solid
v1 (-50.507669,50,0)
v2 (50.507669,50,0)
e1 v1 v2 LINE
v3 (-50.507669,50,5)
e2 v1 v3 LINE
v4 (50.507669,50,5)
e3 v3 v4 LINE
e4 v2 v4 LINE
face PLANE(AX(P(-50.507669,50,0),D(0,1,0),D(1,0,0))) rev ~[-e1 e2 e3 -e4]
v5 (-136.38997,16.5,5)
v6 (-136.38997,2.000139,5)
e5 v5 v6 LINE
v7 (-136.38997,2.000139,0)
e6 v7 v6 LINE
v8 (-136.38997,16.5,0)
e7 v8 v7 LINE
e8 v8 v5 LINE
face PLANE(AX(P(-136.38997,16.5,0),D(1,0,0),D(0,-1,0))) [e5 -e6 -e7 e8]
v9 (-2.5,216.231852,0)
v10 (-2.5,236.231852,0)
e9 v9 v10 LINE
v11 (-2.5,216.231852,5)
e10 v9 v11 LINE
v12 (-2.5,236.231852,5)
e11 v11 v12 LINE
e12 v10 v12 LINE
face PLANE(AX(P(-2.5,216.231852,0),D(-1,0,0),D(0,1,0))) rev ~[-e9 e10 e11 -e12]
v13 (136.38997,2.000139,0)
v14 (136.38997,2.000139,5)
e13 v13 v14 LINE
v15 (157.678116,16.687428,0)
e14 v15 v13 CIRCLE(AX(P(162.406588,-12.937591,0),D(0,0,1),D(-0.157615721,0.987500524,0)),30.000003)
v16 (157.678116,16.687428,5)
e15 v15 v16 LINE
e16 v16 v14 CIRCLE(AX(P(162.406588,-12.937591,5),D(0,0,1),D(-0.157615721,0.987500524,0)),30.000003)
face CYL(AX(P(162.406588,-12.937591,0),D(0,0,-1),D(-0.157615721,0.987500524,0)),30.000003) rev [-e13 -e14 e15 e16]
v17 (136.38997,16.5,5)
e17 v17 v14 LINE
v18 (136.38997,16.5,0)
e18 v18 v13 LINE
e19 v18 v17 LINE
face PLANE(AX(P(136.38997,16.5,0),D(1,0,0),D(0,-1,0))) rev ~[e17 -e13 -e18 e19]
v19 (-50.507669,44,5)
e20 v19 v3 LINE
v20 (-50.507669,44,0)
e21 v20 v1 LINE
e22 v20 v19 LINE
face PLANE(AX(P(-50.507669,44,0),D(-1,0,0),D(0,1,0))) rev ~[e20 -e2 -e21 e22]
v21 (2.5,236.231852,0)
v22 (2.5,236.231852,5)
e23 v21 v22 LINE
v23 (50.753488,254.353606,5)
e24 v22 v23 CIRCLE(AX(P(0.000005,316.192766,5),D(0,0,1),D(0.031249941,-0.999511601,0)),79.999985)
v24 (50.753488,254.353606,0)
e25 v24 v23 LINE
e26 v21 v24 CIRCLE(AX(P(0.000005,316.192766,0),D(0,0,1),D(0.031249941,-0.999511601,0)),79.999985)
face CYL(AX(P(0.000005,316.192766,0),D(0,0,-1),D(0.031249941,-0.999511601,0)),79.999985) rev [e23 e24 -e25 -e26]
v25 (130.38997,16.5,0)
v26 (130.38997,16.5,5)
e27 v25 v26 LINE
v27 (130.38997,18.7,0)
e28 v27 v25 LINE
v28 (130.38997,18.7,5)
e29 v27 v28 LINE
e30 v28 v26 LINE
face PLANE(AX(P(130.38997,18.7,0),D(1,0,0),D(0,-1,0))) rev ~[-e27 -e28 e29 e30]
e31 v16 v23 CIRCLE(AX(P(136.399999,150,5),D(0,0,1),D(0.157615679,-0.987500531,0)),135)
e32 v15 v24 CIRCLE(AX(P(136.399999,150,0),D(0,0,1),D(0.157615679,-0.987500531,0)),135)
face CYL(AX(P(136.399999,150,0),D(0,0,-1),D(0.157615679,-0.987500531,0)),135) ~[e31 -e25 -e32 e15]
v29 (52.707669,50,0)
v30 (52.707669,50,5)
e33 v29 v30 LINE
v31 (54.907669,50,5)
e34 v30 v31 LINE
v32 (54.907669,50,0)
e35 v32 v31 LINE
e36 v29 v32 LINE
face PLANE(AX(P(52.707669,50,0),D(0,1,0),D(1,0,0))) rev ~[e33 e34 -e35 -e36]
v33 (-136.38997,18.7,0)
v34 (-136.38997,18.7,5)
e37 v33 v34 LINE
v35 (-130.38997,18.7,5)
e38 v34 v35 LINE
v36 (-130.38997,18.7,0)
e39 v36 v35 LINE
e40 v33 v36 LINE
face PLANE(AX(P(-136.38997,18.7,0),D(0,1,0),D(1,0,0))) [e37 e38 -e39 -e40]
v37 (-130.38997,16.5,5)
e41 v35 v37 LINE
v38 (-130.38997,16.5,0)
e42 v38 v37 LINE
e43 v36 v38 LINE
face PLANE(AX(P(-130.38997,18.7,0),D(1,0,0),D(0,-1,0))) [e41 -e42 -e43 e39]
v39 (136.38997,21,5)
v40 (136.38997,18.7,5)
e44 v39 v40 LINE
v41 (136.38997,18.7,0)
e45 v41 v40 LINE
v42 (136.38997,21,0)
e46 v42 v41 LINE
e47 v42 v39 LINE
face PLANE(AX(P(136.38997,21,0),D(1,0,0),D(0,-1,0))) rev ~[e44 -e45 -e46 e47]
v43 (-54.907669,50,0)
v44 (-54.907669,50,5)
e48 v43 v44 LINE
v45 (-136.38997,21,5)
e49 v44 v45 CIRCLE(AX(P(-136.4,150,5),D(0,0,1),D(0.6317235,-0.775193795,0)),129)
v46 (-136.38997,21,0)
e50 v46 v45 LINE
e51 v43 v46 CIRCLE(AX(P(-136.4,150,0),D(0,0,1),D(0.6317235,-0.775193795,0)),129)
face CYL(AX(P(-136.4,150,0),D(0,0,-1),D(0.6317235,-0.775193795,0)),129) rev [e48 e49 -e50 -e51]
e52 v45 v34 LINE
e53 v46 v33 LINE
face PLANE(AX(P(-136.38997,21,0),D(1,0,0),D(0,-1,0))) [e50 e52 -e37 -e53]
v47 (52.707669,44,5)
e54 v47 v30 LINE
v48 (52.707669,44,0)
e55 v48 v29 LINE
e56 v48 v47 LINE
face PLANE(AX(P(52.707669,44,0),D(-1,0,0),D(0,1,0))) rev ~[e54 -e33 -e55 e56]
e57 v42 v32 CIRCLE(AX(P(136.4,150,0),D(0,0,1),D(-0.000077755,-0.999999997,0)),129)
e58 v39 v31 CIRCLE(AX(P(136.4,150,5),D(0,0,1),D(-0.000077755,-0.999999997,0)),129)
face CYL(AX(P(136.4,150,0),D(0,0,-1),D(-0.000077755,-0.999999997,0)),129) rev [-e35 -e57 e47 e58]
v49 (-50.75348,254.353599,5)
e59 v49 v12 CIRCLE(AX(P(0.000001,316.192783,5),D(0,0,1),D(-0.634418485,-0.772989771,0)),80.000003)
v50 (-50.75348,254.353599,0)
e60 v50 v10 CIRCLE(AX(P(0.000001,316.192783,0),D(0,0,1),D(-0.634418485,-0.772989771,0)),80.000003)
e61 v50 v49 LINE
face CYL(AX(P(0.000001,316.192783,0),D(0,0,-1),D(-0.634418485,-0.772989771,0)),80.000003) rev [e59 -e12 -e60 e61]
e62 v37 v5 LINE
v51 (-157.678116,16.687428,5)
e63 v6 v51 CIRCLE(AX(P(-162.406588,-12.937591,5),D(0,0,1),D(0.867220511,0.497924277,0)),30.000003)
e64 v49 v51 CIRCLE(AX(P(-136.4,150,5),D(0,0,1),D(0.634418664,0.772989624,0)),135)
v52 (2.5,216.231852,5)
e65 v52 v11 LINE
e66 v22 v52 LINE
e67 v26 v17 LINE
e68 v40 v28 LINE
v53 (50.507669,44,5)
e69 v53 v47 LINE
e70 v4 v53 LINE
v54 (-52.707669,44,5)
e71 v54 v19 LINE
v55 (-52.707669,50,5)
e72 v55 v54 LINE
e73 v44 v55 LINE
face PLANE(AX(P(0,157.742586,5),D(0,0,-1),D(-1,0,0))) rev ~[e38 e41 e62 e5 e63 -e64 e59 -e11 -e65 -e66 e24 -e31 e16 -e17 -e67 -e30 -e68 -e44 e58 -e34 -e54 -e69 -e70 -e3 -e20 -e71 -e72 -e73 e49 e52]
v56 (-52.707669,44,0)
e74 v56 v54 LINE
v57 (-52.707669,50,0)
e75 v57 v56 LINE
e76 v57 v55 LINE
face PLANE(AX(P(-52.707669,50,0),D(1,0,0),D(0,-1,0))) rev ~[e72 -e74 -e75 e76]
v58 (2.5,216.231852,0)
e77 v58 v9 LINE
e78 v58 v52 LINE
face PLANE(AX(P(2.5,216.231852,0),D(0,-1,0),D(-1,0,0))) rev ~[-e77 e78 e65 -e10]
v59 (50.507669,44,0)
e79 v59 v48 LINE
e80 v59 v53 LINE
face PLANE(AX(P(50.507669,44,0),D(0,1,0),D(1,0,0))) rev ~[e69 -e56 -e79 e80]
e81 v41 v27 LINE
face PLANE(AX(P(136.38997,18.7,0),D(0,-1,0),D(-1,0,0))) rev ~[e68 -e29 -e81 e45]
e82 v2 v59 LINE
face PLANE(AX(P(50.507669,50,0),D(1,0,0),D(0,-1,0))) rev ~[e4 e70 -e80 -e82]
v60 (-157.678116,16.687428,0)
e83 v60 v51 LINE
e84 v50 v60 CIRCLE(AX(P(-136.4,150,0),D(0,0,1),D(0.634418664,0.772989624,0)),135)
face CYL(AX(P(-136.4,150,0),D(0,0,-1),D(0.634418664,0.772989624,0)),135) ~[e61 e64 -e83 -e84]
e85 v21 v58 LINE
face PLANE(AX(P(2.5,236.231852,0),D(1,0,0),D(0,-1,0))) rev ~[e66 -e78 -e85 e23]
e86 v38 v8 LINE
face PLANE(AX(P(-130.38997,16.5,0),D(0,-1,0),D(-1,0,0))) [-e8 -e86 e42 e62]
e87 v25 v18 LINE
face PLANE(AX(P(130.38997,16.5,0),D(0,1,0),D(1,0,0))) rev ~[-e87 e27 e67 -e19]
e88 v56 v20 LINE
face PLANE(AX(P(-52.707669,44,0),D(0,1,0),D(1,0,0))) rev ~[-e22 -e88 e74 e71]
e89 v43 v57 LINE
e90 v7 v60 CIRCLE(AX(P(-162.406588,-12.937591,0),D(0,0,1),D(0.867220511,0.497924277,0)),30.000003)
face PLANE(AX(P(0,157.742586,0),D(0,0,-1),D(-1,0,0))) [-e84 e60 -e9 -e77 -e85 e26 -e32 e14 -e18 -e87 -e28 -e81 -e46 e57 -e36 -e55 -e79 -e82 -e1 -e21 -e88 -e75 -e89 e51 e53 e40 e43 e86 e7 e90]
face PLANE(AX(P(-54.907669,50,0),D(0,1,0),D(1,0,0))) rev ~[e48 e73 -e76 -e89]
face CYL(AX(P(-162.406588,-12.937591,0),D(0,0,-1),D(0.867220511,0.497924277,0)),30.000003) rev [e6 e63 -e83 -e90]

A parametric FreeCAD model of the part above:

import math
import FreeCAD as App
import Part
import Sketcher

doc = App.newDocument("Part")
body = doc.addObject("PartDesign::Body", "Body")

# Sketch on XY plane
sketch1 = body.newObject("Sketcher::SketchObject", "Sketch")
sketch1.AttachmentSupport = (doc.getObject("XY_Plane"), [""])
sketch1.MapMode = "FlatFace"
sketch1.addGeometry(Part.ArcOfCircle(Part.Circle(App.Vector(136.4, 150, 0), App.Vector(0, 0, 1), 129), math.radians(-90), math.radians(231)), False)
sketch1.addGeometry(Part.LineSegment(App.Vector(136.4, 21, 0), App.Vector(136.4, 18.7, 0)), False)
sketch1.addGeometry(Part.LineSegment(App.Vector(136.4, 18.7, 0), App.Vector(130.4, 18.7, 0)), False)
sketch1.addGeometry(Part.LineSegment(App.Vector(130.4, 18.7, 0), App.Vector(130.4, 16.5, 0)), False)
sketch1.addGeometry(Part.LineSegment(App.Vector(130.4, 16.5, 0), App.Vector(136.4, 16.5, 0)), False)
sketch1.addGeometry(Part.LineSegment(App.Vector(136.4, 16.5, 0), App.Vector(136.4, 2, 0)), False)
sketch1.addGeometry(Part.ArcOfCircle(Part.Circle(App.Vector(162.4, -12.9, 0), App.Vector(0, 0, 1), 30), math.radians(99), math.radians(150)), False)
sketch1.addGeometry(Part.ArcOfCircle(Part.Circle(App.Vector(136.4, 150, 0), App.Vector(0, 0, 1), 135), math.radians(-81), math.radians(129)), False)
sketch1.addGeometry(Part.ArcOfCircle(Part.Circle(App.Vector(0, 316.2, 0), App.Vector(0, 0, 1), 80), math.radians(-88), math.radians(-51)), False)
sketch1.addGeometry(Part.LineSegment(App.Vector(2.5, 236.2, 0), App.Vector(2.5, 216.2, 0)), False)
sketch1.addGeometry(Part.LineSegment(App.Vector(2.5, 216.2, 0), App.Vector(-2.5, 216.2, 0)), False)
sketch1.addGeometry(Part.LineSegment(App.Vector(-2.5, 216.2, 0), App.Vector(-2.5, 236.2, 0)), False)
sketch1.addGeometry(Part.ArcOfCircle(Part.Circle(App.Vector(0, 316.2, 0), App.Vector(0, 0, 1), 80), math.radians(-129), math.radians(-92)), False)
sketch1.addGeometry(Part.ArcOfCircle(Part.Circle(App.Vector(-136.4, 150, 0), App.Vector(0, 0, 1), 135), math.radians(51), math.radians(261)), False)
sketch1.addGeometry(Part.ArcOfCircle(Part.Circle(App.Vector(-162.4, -12.9, 0), App.Vector(0, 0, 1), 30), math.radians(30), math.radians(81)), False)
sketch1.addGeometry(Part.LineSegment(App.Vector(-136.4, 2, 0), App.Vector(-136.4, 16.5, 0)), False)
sketch1.addGeometry(Part.LineSegment(App.Vector(-136.4, 16.5, 0), App.Vector(-130.4, 16.5, 0)), False)
sketch1.addGeometry(Part.LineSegment(App.Vector(-130.4, 16.5, 0), App.Vector(-130.4, 18.7, 0)), False)
sketch1.addGeometry(Part.LineSegment(App.Vector(-130.4, 18.7, 0), App.Vector(-136.4, 18.7, 0)), False)
sketch1.addGeometry(Part.LineSegment(App.Vector(-136.4, 18.7, 0), App.Vector(-136.4, 21, 0)), False)
sketch1.addGeometry(Part.ArcOfCircle(Part.Circle(App.Vector(-136.4, 150, 0), App.Vector(0, 0, 1), 129), math.radians(-51), math.radians(270)), False)
sketch1.addGeometry(Part.LineSegment(App.Vector(-54.9, 50, 0), App.Vector(-52.7, 50, 0)), False)
sketch1.addGeometry(Part.LineSegment(App.Vector(-52.7, 50, 0), App.Vector(-52.7, 44, 0)), False)
sketch1.addGeometry(Part.LineSegment(App.Vector(-52.7, 44, 0), App.Vector(-50.5, 44, 0)), False)
sketch1.addGeometry(Part.LineSegment(App.Vector(-50.5, 44, 0), App.Vector(-50.5, 50, 0)), False)
sketch1.addGeometry(Part.LineSegment(App.Vector(-50.5, 50, 0), App.Vector(50.5, 50, 0)), False)
sketch1.addGeometry(Part.LineSegment(App.Vector(50.5, 50, 0), App.Vector(50.5, 44, 0)), False)
sketch1.addGeometry(Part.LineSegment(App.Vector(50.5, 44, 0), App.Vector(52.7, 44, 0)), False)
sketch1.addGeometry(Part.LineSegment(App.Vector(52.7, 44, 0), App.Vector(52.7, 50, 0)), False)
sketch1.addGeometry(Part.LineSegment(App.Vector(52.7, 50, 0), App.Vector(54.9, 50, 0)), False)
sketch1.addConstraint(Sketcher.Constraint("Coincident", 0, 1, 1, 1))
sketch1.addConstraint(Sketcher.Constraint("Coincident", 1, 2, 2, 1))
sketch1.addConstraint(Sketcher.Constraint("Coincident", 2, 2, 3, 1))
sketch1.addConstraint(Sketcher.Constraint("Coincident", 3, 2, 4, 1))
sketch1.addConstraint(Sketcher.Constraint("Coincident", 4, 2, 5, 1))
sketch1.addConstraint(Sketcher.Constraint("Coincident", 5, 2, 6, 2))
sketch1.addConstraint(Sketcher.Constraint("Tangent", 6, 1, 7, 1))
sketch1.addConstraint(Sketcher.Constraint("Tangent", 7, 2, 8, 2))
sketch1.addConstraint(Sketcher.Constraint("Coincident", 8, 1, 9, 1))
sketch1.addConstraint(Sketcher.Constraint("Coincident", 9, 2, 10, 1))
sketch1.addConstraint(Sketcher.Constraint("Coincident", 10, 2, 11, 1))
sketch1.addConstraint(Sketcher.Constraint("Coincident", 11, 2, 12, 2))
sketch1.addConstraint(Sketcher.Constraint("Tangent", 12, 1, 13, 1))
sketch1.addConstraint(Sketcher.Constraint("Tangent", 13, 2, 14, 2))
sketch1.addConstraint(Sketcher.Constraint("Coincident", 14, 1, 15, 1))
sketch1.addConstraint(Sketcher.Constraint("Coincident", 15, 2, 16, 1))
sketch1.addConstraint(Sketcher.Constraint("Coincident", 16, 2, 17, 1))
sketch1.addConstraint(Sketcher.Constraint("Coincident", 17, 2, 18, 1))
sketch1.addConstraint(Sketcher.Constraint("Coincident", 18, 2, 19, 1))
sketch1.addConstraint(Sketcher.Constraint("Coincident", 19, 2, 20, 2))
sketch1.addConstraint(Sketcher.Constraint("Coincident", 20, 1, 21, 1))
sketch1.addConstraint(Sketcher.Constraint("Coincident", 21, 2, 22, 1))
sketch1.addConstraint(Sketcher.Constraint("Coincident", 22, 2, 23, 1))
sketch1.addConstraint(Sketcher.Constraint("Coincident", 23, 2, 24, 1))
sketch1.addConstraint(Sketcher.Constraint("Coincident", 24, 2, 25, 1))
sketch1.addConstraint(Sketcher.Constraint("Coincident", 25, 2, 26, 1))
sketch1.addConstraint(Sketcher.Constraint("Coincident", 26, 2, 27, 1))
sketch1.addConstraint(Sketcher.Constraint("Coincident", 27, 2, 28, 1))
sketch1.addConstraint(Sketcher.Constraint("Coincident", 28, 2, 29, 1))
sketch1.addConstraint(Sketcher.Constraint("Coincident", 29, 2, 0, 2))
sketch1.addConstraint(Sketcher.Constraint("Vertical", 1))
sketch1.addConstraint(Sketcher.Constraint("Horizontal", 2))
sketch1.addConstraint(Sketcher.Constraint("Vertical", 3))
sketch1.addConstraint(Sketcher.Constraint("Horizontal", 4))
sketch1.addConstraint(Sketcher.Constraint("Vertical", 5))
sketch1.addConstraint(Sketcher.Constraint("Vertical", 9))
sketch1.addConstraint(Sketcher.Constraint("Horizontal", 10))
sketch1.addConstraint(Sketcher.Constraint("Vertical", 11))
sketch1.addConstraint(Sketcher.Constraint("Vertical", 15))
sketch1.addConstraint(Sketcher.Constraint("Horizontal", 16))
sketch1.addConstraint(Sketcher.Constraint("Vertical", 17))
sketch1.addConstraint(Sketcher.Constraint("Horizontal", 18))
sketch1.addConstraint(Sketcher.Constraint("Vertical", 19))
sketch1.addConstraint(Sketcher.Constraint("Horizontal", 21))
sketch1.addConstraint(Sketcher.Constraint("Vertical", 22))
sketch1.addConstraint(Sketcher.Constraint("Horizontal", 23))
sketch1.addConstraint(Sketcher.Constraint("Vertical", 24))
sketch1.addConstraint(Sketcher.Constraint("Horizontal", 25))
sketch1.addConstraint(Sketcher.Constraint("Vertical", 26))
sketch1.addConstraint(Sketcher.Constraint("Horizontal", 27))
sketch1.addConstraint(Sketcher.Constraint("Vertical", 28))
sketch1.addConstraint(Sketcher.Constraint("Horizontal", 29))
sketch1.addConstraint(Sketcher.Constraint("Coincident", 7, 3, 0, 3))
sketch1.addConstraint(Sketcher.Constraint("Coincident", 20, 3, 13, 3))
sketch1.addConstraint(Sketcher.Constraint("Equal", 7, 13))
sketch1.addConstraint(Sketcher.Constraint("Equal", 6, 14))
sketch1.addConstraint(Sketcher.Constraint("Equal", 0, 20))
sketch1.addConstraint(Sketcher.Constraint("Symmetric", 0, 3, 13, 3, -2))
sketch1.addConstraint(Sketcher.Constraint("Symmetric", 8, 1, 11, 2, -2))
sketch1.addConstraint(Sketcher.Constraint("Symmetric", 5, 2, 14, 1, -2))
sketch1.addConstraint(Sketcher.Constraint("Symmetric", 3, 2, 16, 2, -2))
sketch1.addConstraint(Sketcher.Constraint("Symmetric", 1, 2, 18, 2, -2))
sketch1.addConstraint(Sketcher.Constraint("Symmetric", 23, 2, 26, 2, -2))
sketch1.addConstraint(Sketcher.Constraint("Symmetric", 21, 2, 28, 2, -2))
sketch1.addConstraint(Sketcher.Constraint("PointOnObject", 12, 3, -2))
sketch1.addConstraint(Sketcher.Constraint("Horizontal", 21, 2, 24, 2))
sketch1.addConstraint(Sketcher.Constraint("Vertical", 1, 2, 4, 2))
sketch1.addConstraint(Sketcher.Constraint("Equal", 21, 23))
sketch1.addConstraint(Sketcher.Constraint("Equal", 29, 3))
sketch1.addConstraint(Sketcher.Constraint("Equal", 18, 22))
sketch1.addConstraint(Sketcher.Constraint("Radius", 0, 129.0))
sketch1.addConstraint(Sketcher.Constraint("Radius", 7, 135.0))
sketch1.addConstraint(Sketcher.Constraint("DistanceX", 2, 2, 2, 1, 6.0))
sketch1.addConstraint(Sketcher.Constraint("DistanceX", 10, 2, 10, 1, 5.0))
sketch1.addConstraint(Sketcher.Constraint("DistanceY", 9, 2, 9, 1, 20.0))
sketch1.addConstraint(Sketcher.Constraint("DistanceX", 21, 1, 21, 2, 2.2))
sketch1.addConstraint(Sketcher.Constraint("DistanceY", 1, 2, 1, 1, 2.3))
sketch1.addConstraint(Sketcher.Constraint("DistanceY", -1, 1, 0, 3, 150.0))
sketch1.addConstraint(Sketcher.Constraint("DistanceY", -1, 1, 20, 1, 50.0))
sketch1.addConstraint(Sketcher.Constraint("DistanceX", -1, 1, 0, 3, 136.4))
sketch1.addConstraint(Sketcher.Constraint("Radius", 6, 30.000003))
sketch1.addConstraint(Sketcher.Constraint("Radius", 8, 79.999985))
sketch1.addConstraint(Sketcher.Constraint("Radius", 12, 80.000003))
sketch1.addConstraint(Sketcher.Constraint("DistanceY", 5, 2, 5, 1, 14.499861))
sketch1.addConstraint(Sketcher.Constraint("DistanceX", 17, 2, 20, 1, 75.482301))
pad1 = body.newObject("PartDesign::Pad", "Pad")
pad1.Profile = sketch1
pad1.Length = 5

doc.recompute()
